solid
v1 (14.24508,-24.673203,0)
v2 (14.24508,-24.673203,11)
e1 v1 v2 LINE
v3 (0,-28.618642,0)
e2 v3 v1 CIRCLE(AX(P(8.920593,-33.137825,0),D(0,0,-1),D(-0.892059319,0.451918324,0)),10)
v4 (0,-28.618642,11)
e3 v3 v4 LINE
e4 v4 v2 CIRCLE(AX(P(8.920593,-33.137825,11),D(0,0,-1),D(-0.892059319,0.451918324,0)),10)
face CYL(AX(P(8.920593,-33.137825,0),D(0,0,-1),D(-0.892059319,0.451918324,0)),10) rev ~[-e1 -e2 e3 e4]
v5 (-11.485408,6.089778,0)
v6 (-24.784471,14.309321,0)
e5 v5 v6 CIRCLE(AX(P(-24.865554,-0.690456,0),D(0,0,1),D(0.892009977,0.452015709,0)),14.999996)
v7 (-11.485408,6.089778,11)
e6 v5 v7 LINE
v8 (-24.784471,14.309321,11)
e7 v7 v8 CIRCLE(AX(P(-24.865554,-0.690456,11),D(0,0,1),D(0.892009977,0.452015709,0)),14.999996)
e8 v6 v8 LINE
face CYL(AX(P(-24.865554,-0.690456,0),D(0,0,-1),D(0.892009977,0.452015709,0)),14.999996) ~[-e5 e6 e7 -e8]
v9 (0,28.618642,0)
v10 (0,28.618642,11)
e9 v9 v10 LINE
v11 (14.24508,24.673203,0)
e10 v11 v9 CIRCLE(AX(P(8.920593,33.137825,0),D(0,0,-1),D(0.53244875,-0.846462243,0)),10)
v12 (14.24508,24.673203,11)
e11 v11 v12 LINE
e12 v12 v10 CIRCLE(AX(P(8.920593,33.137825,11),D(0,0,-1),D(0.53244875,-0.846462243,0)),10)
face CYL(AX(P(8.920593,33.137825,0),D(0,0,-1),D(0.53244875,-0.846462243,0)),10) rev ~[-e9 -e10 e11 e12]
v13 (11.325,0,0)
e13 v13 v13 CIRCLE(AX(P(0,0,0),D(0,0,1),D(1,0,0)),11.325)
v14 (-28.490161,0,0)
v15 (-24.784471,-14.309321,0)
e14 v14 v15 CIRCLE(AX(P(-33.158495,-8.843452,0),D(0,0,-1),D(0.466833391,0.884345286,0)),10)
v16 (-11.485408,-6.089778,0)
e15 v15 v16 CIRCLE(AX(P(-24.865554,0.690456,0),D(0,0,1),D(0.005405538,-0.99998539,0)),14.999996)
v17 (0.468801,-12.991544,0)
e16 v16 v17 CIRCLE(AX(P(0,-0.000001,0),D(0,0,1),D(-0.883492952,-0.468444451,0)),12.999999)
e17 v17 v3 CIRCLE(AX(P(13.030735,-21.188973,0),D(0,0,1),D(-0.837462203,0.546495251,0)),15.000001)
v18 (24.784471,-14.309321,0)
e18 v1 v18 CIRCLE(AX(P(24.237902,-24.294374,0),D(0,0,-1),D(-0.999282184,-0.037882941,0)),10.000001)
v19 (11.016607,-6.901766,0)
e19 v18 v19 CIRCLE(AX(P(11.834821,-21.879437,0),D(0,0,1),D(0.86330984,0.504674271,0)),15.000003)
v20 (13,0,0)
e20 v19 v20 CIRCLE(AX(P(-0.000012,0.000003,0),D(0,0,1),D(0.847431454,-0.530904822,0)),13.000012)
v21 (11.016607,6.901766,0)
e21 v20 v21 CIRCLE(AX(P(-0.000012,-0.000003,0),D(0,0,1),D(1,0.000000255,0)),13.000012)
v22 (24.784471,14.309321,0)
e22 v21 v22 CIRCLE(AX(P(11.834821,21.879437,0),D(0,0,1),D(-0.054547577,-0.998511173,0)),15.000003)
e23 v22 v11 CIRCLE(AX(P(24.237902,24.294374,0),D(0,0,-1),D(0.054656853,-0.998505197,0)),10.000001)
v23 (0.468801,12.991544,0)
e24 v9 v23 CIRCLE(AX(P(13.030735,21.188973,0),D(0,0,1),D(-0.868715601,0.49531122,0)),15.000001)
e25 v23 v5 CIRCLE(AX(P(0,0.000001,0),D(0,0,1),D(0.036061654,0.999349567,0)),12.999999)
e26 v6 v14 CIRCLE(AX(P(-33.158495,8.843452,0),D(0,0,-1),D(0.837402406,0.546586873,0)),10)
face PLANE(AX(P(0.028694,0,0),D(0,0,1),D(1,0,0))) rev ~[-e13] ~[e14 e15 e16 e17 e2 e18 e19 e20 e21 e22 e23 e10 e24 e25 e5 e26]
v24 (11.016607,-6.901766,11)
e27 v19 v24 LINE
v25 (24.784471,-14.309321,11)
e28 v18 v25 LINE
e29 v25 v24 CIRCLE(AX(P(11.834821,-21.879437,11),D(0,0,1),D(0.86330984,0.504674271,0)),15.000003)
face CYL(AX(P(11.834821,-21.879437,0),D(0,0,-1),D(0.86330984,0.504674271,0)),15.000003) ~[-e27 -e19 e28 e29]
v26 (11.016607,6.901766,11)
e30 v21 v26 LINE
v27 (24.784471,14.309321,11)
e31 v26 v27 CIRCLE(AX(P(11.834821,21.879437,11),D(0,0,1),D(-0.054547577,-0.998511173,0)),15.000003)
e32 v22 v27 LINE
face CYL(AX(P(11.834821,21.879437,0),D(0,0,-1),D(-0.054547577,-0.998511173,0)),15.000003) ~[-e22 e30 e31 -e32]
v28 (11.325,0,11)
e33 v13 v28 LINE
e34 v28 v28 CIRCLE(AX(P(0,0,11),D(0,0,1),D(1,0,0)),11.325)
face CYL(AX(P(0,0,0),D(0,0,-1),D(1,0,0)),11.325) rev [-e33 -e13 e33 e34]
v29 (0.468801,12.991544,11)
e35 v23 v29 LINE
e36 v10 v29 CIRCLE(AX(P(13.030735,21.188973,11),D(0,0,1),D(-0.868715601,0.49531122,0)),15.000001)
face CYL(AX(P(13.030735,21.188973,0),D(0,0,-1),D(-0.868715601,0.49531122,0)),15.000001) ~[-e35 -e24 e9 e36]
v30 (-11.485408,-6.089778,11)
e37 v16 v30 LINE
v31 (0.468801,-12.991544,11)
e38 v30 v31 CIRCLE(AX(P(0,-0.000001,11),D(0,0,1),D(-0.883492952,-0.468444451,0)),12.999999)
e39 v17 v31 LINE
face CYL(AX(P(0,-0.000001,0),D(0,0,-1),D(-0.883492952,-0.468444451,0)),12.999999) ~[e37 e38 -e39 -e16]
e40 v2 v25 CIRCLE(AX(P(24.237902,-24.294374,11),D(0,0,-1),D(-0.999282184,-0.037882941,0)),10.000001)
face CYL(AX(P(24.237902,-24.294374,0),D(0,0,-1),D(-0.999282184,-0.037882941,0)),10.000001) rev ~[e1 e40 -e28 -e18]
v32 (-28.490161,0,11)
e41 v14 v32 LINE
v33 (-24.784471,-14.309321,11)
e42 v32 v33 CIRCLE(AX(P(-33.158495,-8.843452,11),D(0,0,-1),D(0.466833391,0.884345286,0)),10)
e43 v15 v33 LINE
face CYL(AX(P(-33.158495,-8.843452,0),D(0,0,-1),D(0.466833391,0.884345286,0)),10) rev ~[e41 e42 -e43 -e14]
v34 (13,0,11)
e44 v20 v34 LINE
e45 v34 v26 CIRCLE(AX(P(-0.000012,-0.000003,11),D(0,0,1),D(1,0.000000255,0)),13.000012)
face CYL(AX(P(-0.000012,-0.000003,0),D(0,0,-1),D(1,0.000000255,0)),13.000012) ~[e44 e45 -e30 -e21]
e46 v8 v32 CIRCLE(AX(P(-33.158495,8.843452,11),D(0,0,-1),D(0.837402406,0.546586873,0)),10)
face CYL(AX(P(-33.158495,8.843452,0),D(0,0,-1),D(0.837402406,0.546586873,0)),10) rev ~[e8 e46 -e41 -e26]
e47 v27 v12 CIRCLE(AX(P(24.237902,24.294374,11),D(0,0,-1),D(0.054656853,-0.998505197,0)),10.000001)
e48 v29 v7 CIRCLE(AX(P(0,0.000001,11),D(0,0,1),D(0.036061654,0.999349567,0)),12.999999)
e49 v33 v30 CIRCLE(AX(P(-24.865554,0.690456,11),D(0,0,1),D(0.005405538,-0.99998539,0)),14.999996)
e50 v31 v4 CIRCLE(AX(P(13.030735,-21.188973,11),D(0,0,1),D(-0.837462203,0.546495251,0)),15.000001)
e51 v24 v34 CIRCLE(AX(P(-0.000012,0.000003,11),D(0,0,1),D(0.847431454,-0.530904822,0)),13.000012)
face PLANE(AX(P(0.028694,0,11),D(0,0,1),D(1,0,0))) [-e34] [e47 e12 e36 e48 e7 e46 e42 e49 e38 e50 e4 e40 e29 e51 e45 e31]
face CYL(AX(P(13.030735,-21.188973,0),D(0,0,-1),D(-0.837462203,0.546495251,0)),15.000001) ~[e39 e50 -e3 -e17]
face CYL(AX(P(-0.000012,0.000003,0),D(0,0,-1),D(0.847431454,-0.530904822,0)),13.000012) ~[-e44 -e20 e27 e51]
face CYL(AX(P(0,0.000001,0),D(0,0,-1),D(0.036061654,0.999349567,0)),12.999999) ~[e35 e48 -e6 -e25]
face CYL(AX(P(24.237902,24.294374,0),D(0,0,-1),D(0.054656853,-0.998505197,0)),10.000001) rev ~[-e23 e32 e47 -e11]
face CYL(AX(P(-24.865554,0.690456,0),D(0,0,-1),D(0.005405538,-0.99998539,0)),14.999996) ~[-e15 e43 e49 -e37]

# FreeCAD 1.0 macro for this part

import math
import FreeCAD as App
import Part
import Sketcher
from FreeCAD import Vector

doc = App.newDocument("Part")
params = doc.addObject("Spreadsheet::Sheet", "Params")
for row, (alias, value) in enumerate([
    ("sketch1_radius", "10.000001 mm"),
    ("sketch1_radius2", "10 mm"),
    ("sketch1_radius3", "15.000001 mm"),
    ("sketch1_radius4", "12.999999 mm"),
    ("sketch1_radius5", "10 mm"),
    ("pad1_length", "11 mm"),
], start=1):
    params.set(f"A{row}", alias)
    params.set(f"B{row}", "=" + value)
    params.setAlias(f"B{row}", alias)

body = doc.addObject("PartDesign::Body", "Body")

sketch1 = body.newObject("Sketcher::SketchObject", "Sketch")
sketch1.AttachmentSupport = (doc.getObject("XY_Plane"), [""])
sketch1.MapMode = "FlatFace"
sketch1.addGeometry([
    Part.ArcOfCircle(Part.Circle(Vector(-0.000012, 0.000003, 0), Vector(0, 0, 1), 13.000012), math.radians(-32.06661), math.radians(-0.000015)),
    Part.ArcOfCircle(Part.Circle(Vector(-0.000012, -0.000003, 0), Vector(0, 0, 1), 13.000012), math.radians(0.000015), math.radians(32.06661)),
    Part.ArcOfCircle(Part.Circle(Vector(11.834821, 21.879437, 0), Vector(0, 0, 1), 15.000003), math.radians(-93.126898), math.radians(-30.309732)),
    Part.ArcOfCircle(Part.Circle(Vector(24.237902, 24.294374, 0), Vector(0, 0, 1), 10.000001), math.radians(177.828948), math.radians(273.133168)),
    Part.ArcOfCircle(Part.Circle(Vector(8.920593, 33.137825, 0), Vector(0, 0, 1), 10), math.radians(-153.133172), math.radians(-57.828943)),
    Part.ArcOfCircle(Part.Circle(Vector(13.030735, 21.188973, 0), Vector(0, 0, 1), 15.000001), math.radians(150.309725), math.radians(213.126903)),
    Part.ArcOfCircle(Part.Circle(Vector(0, 0.000001, 0), Vector(0, 0, 1), 12.999999), math.radians(87.933371), math.radians(152.06663)),
    Part.ArcOfCircle(Part.Circle(Vector(-24.865554, -0.690456, 0), Vector(0, 0, 1), 14.999996), math.radians(26.873083), math.radians(89.690284)),
    Part.ArcOfCircle(Part.Circle(Vector(-33.158495, 8.843452, 0), Vector(0, 0, 1), 10), math.radians(-62.171059), math.radians(33.133172)),
    Part.ArcOfCircle(Part.Circle(Vector(-33.158495, -8.843452, 0), Vector(0, 0, 1), 10), math.radians(-33.133172), math.radians(62.171059)),
    Part.ArcOfCircle(Part.Circle(Vector(-24.865554, 0.690456, 0), Vector(0, 0, 1), 14.999996), math.radians(-89.690284), math.radians(-26.873083)),
    Part.ArcOfCircle(Part.Circle(Vector(0, -0.000001, 0), Vector(0, 0, 1), 12.999999), math.radians(-152.06663), math.radians(-87.933371)),
    Part.ArcOfCircle(Part.Circle(Vector(13.030735, -21.188973, 0), Vector(0, 0, 1), 15.000001), math.radians(146.873097), math.radians(209.690275)),
    Part.ArcOfCircle(Part.Circle(Vector(8.920593, -33.137825, 0), Vector(0, 0, 1), 10), math.radians(57.828943), math.radians(153.133172)),
    Part.ArcOfCircle(Part.Circle(Vector(24.237902, -24.294374, 0), Vector(0, 0, 1), 10.000001), math.radians(86.866832), math.radians(182.171052)),
    Part.ArcOfCircle(Part.Circle(Vector(11.834821, -21.879437, 0), Vector(0, 0, 1), 15.000003), math.radians(30.309732), math.radians(93.126898)),
    Part.Circle(Vector(0, 0, 0), Vector(0, 0, 1), 11.325),
], False)
sketch1.addConstraint([
    Sketcher.Constraint("Coincident", 0, 2, 1, 1),
    Sketcher.Constraint("Coincident", 1, 2, 2, 1),
    Sketcher.Constraint("Coincident", 2, 2, 3, 2),
    Sketcher.Constraint("Coincident", 3, 1, 4, 2),
    Sketcher.Constraint("Coincident", 4, 1, 5, 1),
    Sketcher.Constraint("Coincident", 5, 2, 6, 1),
    Sketcher.Constraint("Coincident", 6, 2, 7, 1),
    Sketcher.Constraint("Coincident", 7, 2, 8, 2),
    Sketcher.Constraint("Coincident", 8, 1, 9, 2),
    Sketcher.Constraint("Coincident", 9, 1, 10, 1),
    Sketcher.Constraint("Coincident", 10, 2, 11, 1),
    Sketcher.Constraint("Coincident", 11, 2, 12, 1),
    Sketcher.Constraint("Coincident", 12, 2, 13, 2),
    Sketcher.Constraint("Coincident", 13, 1, 14, 2),
    Sketcher.Constraint("Coincident", 14, 1, 15, 1),
    Sketcher.Constraint("Coincident", 15, 2, 0, 1),
    Sketcher.Constraint("Coincident", 6, 3, -1, 1),
    Sketcher.Constraint("Coincident", 11, 3, -1, 1),
    Sketcher.Constraint("Coincident", 16, 3, -1, 1),
    Sketcher.Constraint("Coincident", 1, 3, 0, 3),
    Sketcher.Constraint("PointOnObject", 0, 2, -1),
    Sketcher.Constraint("PointOnObject", 4, 1, -2),
    Sketcher.Constraint("PointOnObject", 8, 1, -1),
    Sketcher.Constraint("PointOnObject", 12, 2, -2),
    Sketcher.Constraint("Radius", 3, 10.000001),
    Sketcher.Constraint("Radius", 4, 10.0),
    Sketcher.Constraint("Radius", 5, 15.000001),
    Sketcher.Constraint("Radius", 6, 12.999999),
    Sketcher.Constraint("Radius", 8, 10.0),
    Sketcher.Constraint("Radius", 9, 10.0),
    Sketcher.Constraint("Radius", 11, 12.999999),
    Sketcher.Constraint("Radius", 12, 15.000001),
    Sketcher.Constraint("Radius", 13, 10.0),
    Sketcher.Constraint("Radius", 14, 10.000001),
    Sketcher.Constraint("Diameter", 16, 22.65),
    Sketcher.Constraint("DistanceX", -1, 1, 0, 2, 13.0),
    Sketcher.Constraint("Radius", 0, 13.000012),
    Sketcher.Constraint("Radius", 2, 15.000003),
    Sketcher.Constraint("Radius", 7, 14.999996),
    Sketcher.Constraint("Radius", 10, 14.999996),
    Sketcher.Constraint("Radius", 15, 15.000003),
    Sketcher.Constraint("DistanceX", -1, 1, 5, 2, 0.468801),
    Sketcher.Constraint("DistanceX", -1, 1, 11, 2, 0.468801),
    Sketcher.Constraint("DistanceY", 5, 3, 3, 3, 3.1054),
    Sketcher.Constraint("DistanceY", 14, 3, 12, 3, 3.1054),
    Sketcher.Constraint("DistanceY", 9, 1, 6, 2, 20.399099),
    Sketcher.Constraint("DistanceY", 12, 2, 11, 2, 15.627098),
    Sketcher.Constraint("DistanceX", -1, 1, 2, 3, 11.834821),
    Sketcher.Constraint("DistanceX", -1, 1, 15, 3, 11.834821),
    Sketcher.Constraint("DistanceX", -1, 1, 2, 2, 24.784471),
    Sketcher.Constraint("DistanceY", -1, 1, 2, 2, 14.309321),
    Sketcher.Constraint("DistanceX", -1, 1, 3, 1, 14.24508),
    Sketcher.Constraint("DistanceX", 6, 2, -1, 1, 11.485408),
    Sketcher.Constraint("DistanceX", 7, 2, -1, 1, 24.784471),
    Sketcher.Constraint("DistanceY", -1, 1, 7, 2, 14.309321),
    Sketcher.Constraint("DistanceX", 8, 1, -1, 1, 28.490161),
    Sketcher.Constraint("DistanceX", 9, 1, -1, 1, 24.784471),
    Sketcher.Constraint("DistanceY", 10, 2, -1, 1, 6.089778),
    Sketcher.Constraint("DistanceX", -1, 1, 13, 1, 14.24508),
    Sketcher.Constraint("DistanceX", -1, 1, 14, 1, 24.784471),
    Sketcher.Constraint("DistanceY", 1, 3, 2, 3, 21.87944),
    Sketcher.Constraint("DistanceX", 2, 3, 3, 3, 12.403082),
    Sketcher.Constraint("DistanceY", 13, 3, 12, 3, 11.948852),
])
sketch1.setExpression("Constraints[24]", "Params.sketch1_radius")
sketch1.setExpression("Constraints[25]", "Params.sketch1_radius2")
sketch1.setExpression("Constraints[26]", "Params.sketch1_radius3")
sketch1.setExpression("Constraints[27]", "Params.sketch1_radius4")
sketch1.setExpression("Constraints[28]", "Params.sketch1_radius5")
pad1 = body.newObject("PartDesign::Pad", "Pad")
pad1.Profile = sketch1
pad1.setExpression("Length", "Params.pad1_length")

doc.recompute()
